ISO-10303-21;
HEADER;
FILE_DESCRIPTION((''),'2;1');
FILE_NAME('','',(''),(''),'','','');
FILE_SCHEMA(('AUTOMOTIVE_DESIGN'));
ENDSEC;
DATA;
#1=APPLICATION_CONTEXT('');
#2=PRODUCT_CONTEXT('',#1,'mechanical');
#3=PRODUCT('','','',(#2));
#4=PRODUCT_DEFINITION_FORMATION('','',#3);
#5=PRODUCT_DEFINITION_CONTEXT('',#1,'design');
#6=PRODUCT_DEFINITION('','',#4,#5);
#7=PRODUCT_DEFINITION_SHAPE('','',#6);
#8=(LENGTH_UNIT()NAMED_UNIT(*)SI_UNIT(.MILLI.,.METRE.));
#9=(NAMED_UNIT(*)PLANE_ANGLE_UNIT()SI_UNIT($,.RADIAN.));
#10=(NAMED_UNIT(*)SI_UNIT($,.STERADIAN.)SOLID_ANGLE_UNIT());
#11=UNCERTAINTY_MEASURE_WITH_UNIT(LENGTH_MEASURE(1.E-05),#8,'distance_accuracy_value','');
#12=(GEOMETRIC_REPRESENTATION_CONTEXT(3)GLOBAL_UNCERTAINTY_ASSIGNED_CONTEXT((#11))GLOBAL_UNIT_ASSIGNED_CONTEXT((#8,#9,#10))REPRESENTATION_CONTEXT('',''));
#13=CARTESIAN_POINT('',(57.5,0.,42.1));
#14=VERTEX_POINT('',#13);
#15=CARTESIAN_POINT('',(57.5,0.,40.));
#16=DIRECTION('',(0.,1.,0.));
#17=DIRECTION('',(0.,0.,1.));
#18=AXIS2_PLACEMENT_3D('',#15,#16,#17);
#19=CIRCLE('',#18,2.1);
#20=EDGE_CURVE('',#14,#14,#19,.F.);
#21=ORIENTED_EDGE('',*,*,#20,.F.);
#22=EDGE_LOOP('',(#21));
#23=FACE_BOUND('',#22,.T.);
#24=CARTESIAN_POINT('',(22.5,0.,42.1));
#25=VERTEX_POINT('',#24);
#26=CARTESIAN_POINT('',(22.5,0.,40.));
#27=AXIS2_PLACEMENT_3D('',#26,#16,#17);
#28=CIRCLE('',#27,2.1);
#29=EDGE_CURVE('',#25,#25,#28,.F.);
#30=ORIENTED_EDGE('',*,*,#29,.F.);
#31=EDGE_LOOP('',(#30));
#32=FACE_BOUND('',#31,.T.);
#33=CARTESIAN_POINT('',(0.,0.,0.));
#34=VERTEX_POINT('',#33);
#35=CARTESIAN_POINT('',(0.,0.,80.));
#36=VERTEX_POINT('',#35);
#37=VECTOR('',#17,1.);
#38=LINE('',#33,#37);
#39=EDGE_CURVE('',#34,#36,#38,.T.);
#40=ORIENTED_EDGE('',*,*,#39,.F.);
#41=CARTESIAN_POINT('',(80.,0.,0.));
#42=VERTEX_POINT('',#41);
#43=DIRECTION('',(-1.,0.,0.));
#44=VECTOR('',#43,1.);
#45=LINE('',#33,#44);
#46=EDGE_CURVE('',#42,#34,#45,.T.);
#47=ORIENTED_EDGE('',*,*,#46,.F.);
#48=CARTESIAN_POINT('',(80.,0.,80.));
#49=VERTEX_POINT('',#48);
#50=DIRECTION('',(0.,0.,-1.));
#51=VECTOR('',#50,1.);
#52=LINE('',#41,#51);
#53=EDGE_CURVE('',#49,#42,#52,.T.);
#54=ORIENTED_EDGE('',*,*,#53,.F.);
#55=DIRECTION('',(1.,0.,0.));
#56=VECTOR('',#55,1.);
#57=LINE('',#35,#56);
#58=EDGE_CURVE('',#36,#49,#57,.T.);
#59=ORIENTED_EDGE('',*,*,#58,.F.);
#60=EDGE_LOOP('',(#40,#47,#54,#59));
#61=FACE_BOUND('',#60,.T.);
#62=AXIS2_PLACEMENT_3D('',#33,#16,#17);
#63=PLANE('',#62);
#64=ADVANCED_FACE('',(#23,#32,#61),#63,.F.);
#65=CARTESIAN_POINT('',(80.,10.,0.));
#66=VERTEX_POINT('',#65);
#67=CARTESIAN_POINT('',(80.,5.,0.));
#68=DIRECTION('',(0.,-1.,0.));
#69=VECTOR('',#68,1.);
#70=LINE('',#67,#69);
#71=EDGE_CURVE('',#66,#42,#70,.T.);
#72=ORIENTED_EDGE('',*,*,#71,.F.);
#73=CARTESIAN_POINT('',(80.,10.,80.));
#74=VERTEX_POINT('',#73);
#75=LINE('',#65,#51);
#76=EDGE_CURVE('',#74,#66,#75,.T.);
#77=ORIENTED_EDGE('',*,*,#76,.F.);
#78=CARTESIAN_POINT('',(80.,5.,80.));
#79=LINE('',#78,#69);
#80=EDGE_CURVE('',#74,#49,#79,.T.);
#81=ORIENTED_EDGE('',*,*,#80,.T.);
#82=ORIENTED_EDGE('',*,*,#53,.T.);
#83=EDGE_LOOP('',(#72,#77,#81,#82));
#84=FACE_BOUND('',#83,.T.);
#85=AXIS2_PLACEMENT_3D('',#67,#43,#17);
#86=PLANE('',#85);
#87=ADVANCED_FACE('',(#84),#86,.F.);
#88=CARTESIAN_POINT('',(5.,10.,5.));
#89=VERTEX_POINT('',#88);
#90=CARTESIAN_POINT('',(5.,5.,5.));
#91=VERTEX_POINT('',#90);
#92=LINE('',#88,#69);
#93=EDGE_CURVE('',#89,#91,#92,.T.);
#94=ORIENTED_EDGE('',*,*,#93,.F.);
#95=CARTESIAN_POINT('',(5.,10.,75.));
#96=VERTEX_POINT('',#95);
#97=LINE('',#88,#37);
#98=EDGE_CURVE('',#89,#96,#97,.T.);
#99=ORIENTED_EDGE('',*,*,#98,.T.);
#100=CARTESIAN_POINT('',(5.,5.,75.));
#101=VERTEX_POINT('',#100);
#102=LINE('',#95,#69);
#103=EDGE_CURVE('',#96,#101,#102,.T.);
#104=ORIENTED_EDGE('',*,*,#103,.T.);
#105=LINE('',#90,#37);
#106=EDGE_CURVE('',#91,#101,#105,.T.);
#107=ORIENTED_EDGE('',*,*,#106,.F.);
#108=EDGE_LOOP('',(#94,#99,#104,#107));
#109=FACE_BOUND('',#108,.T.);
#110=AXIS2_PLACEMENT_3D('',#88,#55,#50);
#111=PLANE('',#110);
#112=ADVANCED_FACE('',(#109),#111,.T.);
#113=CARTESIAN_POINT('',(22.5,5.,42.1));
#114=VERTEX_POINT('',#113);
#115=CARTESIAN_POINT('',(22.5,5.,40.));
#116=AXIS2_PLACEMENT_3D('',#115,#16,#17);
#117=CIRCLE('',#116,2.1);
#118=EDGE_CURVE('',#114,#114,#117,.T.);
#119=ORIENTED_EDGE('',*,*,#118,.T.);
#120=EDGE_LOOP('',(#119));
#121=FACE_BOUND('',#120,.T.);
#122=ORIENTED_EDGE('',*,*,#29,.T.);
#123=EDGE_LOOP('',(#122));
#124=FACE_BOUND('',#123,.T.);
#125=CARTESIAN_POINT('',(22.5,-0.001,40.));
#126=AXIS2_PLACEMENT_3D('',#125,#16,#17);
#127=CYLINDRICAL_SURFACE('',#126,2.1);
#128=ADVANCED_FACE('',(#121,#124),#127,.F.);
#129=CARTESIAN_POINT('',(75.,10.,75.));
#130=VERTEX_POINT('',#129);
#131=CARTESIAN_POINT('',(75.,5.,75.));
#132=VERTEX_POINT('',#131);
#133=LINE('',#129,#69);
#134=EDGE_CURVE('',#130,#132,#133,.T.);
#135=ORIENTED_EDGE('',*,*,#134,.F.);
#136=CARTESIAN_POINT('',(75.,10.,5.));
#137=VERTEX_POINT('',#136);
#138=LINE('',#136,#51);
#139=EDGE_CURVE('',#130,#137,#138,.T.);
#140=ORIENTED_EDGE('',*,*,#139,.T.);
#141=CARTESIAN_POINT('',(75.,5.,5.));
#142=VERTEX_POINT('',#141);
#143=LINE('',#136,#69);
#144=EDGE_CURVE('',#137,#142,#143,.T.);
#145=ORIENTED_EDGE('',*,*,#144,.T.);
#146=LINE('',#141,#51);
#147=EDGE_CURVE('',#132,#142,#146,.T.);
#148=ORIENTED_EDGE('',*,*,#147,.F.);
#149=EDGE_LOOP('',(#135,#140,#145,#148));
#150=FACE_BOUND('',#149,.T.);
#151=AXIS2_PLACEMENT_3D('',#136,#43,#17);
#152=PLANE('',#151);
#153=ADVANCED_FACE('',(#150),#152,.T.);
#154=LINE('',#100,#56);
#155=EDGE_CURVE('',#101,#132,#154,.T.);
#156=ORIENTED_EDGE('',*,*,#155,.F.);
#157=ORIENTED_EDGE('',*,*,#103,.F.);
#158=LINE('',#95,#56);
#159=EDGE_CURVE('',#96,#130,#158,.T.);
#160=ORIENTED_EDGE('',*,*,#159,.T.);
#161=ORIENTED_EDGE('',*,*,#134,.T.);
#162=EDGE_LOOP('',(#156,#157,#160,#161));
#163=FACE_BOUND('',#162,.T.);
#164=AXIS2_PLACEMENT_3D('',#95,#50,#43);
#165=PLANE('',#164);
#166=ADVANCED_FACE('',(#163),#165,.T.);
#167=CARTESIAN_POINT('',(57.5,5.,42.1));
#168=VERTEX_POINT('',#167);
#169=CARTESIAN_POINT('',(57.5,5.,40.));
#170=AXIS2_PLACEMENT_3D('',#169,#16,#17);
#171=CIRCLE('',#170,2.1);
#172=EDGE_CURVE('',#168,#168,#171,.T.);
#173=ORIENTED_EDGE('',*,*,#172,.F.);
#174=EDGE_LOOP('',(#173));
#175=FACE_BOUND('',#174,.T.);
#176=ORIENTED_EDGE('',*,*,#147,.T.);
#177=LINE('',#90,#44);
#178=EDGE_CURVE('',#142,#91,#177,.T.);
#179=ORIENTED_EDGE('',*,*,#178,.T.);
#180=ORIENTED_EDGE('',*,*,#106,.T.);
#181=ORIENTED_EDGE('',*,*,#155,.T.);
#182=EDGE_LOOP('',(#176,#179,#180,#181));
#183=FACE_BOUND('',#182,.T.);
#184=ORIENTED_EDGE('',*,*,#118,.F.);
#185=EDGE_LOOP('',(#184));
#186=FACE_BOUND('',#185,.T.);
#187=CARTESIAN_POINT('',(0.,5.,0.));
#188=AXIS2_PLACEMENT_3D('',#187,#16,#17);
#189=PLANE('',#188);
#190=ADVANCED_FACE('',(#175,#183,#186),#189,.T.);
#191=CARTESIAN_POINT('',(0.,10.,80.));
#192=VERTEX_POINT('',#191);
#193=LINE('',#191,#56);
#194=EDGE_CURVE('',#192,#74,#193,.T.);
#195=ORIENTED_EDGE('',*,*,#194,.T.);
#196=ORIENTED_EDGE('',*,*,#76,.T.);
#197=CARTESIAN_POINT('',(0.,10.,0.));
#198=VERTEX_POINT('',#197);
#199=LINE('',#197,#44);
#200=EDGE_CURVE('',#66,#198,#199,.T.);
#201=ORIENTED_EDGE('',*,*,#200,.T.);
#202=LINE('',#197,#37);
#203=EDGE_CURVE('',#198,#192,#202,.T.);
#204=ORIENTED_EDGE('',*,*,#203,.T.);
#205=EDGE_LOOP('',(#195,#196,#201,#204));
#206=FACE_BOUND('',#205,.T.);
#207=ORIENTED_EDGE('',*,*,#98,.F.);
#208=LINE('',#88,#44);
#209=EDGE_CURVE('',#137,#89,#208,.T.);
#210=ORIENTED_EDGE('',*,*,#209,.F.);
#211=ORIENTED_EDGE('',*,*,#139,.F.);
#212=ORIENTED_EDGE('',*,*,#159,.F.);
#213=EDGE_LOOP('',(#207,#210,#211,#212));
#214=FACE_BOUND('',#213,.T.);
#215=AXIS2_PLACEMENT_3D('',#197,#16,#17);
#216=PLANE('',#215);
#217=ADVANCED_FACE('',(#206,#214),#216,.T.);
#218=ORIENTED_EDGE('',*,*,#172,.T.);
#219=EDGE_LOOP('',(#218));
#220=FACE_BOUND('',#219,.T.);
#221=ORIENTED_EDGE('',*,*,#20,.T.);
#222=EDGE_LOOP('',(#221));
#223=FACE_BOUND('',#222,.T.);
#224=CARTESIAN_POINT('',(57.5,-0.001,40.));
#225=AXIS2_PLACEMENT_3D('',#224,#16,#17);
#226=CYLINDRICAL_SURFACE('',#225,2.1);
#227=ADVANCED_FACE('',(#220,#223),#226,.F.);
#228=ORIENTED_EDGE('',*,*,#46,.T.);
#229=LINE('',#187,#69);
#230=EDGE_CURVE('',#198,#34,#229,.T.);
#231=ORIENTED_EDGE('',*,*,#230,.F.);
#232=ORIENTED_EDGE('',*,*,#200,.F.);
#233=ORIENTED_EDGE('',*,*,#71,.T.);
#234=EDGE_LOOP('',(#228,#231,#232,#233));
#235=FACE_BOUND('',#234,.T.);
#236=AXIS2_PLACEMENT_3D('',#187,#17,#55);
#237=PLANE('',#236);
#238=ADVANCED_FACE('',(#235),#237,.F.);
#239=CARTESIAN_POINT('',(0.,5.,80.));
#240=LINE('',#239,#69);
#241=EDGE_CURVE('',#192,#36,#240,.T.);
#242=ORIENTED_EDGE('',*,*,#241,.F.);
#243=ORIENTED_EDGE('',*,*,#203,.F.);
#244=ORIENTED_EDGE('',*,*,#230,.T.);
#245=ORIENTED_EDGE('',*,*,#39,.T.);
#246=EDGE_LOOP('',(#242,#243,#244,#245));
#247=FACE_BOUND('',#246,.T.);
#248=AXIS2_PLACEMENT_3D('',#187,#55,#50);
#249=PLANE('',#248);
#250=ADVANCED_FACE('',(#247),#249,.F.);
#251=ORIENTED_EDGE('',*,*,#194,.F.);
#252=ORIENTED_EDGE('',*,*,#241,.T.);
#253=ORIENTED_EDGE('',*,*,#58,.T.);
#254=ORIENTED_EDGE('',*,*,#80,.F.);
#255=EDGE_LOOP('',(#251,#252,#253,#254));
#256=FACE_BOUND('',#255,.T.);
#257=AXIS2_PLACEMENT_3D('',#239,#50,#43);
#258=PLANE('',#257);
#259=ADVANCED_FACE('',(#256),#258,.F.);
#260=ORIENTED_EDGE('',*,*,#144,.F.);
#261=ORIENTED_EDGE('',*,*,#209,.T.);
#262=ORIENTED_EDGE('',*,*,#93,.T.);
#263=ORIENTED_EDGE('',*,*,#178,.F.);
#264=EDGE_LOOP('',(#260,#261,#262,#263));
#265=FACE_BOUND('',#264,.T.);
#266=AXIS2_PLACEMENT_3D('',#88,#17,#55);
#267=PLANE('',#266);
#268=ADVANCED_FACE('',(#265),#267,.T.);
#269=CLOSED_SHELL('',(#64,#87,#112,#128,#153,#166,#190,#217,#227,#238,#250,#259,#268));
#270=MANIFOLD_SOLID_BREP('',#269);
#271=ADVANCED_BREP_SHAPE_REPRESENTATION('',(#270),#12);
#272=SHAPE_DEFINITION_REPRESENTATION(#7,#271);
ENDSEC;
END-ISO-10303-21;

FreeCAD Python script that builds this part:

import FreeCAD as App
import Part
import Sketcher

V = App.Vector


def add_polygon(sketch, points):
    """Adds a closed chain of lines whose ends are joined by coincident constraints."""
    first, n = sketch.GeometryCount, len(points)
    for a, b in zip(points, points[1:] + points[:1]):
        sketch.addGeometry(Part.LineSegment(App.Vector(*a, 0), App.Vector(*b, 0)), False)
    for i in range(n):
        sketch.addConstraint(Sketcher.Constraint("Coincident", first + i, 2, first + (i + 1) % n, 1))

doc = App.newDocument("Part")
body = doc.addObject("PartDesign::Body", "Body")

sketch1 = doc.addObject("Sketcher::SketchObject", "Sketch")
body.addObject(sketch1)
sketch1.AttachmentSupport = (doc.XZ_Plane, [""])
sketch1.MapMode = "FlatFace"
add_polygon(sketch1, [(0, 0), (0, 80), (80, 80), (80, 0)])
sketch1.addConstraint(Sketcher.Constraint("Vertical", 0))
sketch1.addConstraint(Sketcher.Constraint("Horizontal", 1))
sketch1.addConstraint(Sketcher.Constraint("Vertical", 2))
sketch1.addConstraint(Sketcher.Constraint("Horizontal", 3))
sketch1.addConstraint(Sketcher.Constraint("Coincident", 3, 2, -1, 1))
sketch1.addConstraint(Sketcher.Constraint("Equal", 3, 0))
sketch1.addConstraint(Sketcher.Constraint("DistanceX", 1, 1, 1, 2, 80.0))
pad1 = doc.addObject("PartDesign::Pad", "Pad")
body.addObject(pad1)
pad1.Profile = sketch1
pad1.Length = 5
pad1.Reversed = True

sketch2 = doc.addObject("Sketcher::SketchObject", "Sketch001")
body.addObject(sketch2)
sketch2.AttachmentSupport = (doc.XZ_Plane, [""])
sketch2.MapMode = "FlatFace"
sketch2.AttachmentOffset = App.Placement(V(0, 0, -5), App.Rotation())
add_polygon(sketch2, [(0, 0), (0, 80), (80, 80), (80, 0)])
add_polygon(sketch2, [(75, 75), (5, 75), (5, 5), (75, 5)])
sketch2.addConstraint(Sketcher.Constraint("Vertical", 0))
sketch2.addConstraint(Sketcher.Constraint("Horizontal", 1))
sketch2.addConstraint(Sketcher.Constraint("Vertical", 2))
sketch2.addConstraint(Sketcher.Constraint("Horizontal", 3))
sketch2.addConstraint(Sketcher.Constraint("Horizontal", 4))
sketch2.addConstraint(Sketcher.Constraint("Vertical", 5))
sketch2.addConstraint(Sketcher.Constraint("Horizontal", 6))
sketch2.addConstraint(Sketcher.Constraint("Vertical", 7))
sketch2.addConstraint(Sketcher.Constraint("Coincident", 3, 2, -1, 1))
sketch2.addConstraint(Sketcher.Constraint("Equal", 3, 0))
sketch2.addConstraint(Sketcher.Constraint("Equal", 6, 5))
sketch2.addConstraint(Sketcher.Constraint("DistanceX", 1, 1, 1, 2, 80.0))
sketch2.addConstraint(Sketcher.Constraint("DistanceX", 4, 2, 4, 1, 70.0))
sketch2.addConstraint(Sketcher.Constraint("DistanceX", -1, 1, 4, 2, 5.0))
sketch2.addConstraint(Sketcher.Constraint("DistanceY", -1, 1, 4, 2, 75.0))
pad2 = doc.addObject("PartDesign::Pad", "Pad001")
body.addObject(pad2)
pad2.Profile = sketch2
pad2.Length = 5
pad2.Reversed = True

sketch3 = doc.addObject("Sketcher::SketchObject", "Sketch002")
body.addObject(sketch3)
sketch3.AttachmentSupport = (doc.XZ_Plane, [""])
sketch3.MapMode = "FlatFace"
sketch3.AttachmentOffset = App.Placement(V(0, 0, -5), App.Rotation())
sketch3.addGeometry(Part.Circle(V(22.5, 40, 0), V(0, 0, 1), 2.1), False)
sketch3.addConstraint(Sketcher.Constraint("Diameter", 0, 4.2))
sketch3.addConstraint(Sketcher.Constraint("DistanceY", -1, 1, 0, 3, 40.0))
sketch3.addConstraint(Sketcher.Constraint("DistanceX", -1, 1, 0, 3, 22.5))
pocket1 = doc.addObject("PartDesign::Pocket", "Pocket")
body.addObject(pocket1)
pocket1.Profile = sketch3
pocket1.Type = "UpToFirst"
pocket1.Reversed = True

sketch4 = doc.addObject("Sketcher::SketchObject", "Sketch003")
body.addObject(sketch4)
sketch4.AttachmentSupport = (doc.XZ_Plane, [""])
sketch4.MapMode = "FlatFace"
sketch4.AttachmentOffset = App.Placement(V(0, 0, -5), App.Rotation())
sketch4.addGeometry(Part.Circle(V(57.5, 40, 0), V(0, 0, 1), 2.1), False)
sketch4.addConstraint(Sketcher.Constraint("Diameter", 0, 4.2))
sketch4.addConstraint(Sketcher.Constraint("DistanceY", -1, 1, 0, 3, 40.0))
sketch4.addConstraint(Sketcher.Constraint("DistanceX", -1, 1, 0, 3, 57.5))
pocket2 = doc.addObject("PartDesign::Pocket", "Pocket001")
body.addObject(pocket2)
pocket2.Profile = sketch4
pocket2.Type = "UpToFirst"
pocket2.Reversed = True

doc.recompute()
